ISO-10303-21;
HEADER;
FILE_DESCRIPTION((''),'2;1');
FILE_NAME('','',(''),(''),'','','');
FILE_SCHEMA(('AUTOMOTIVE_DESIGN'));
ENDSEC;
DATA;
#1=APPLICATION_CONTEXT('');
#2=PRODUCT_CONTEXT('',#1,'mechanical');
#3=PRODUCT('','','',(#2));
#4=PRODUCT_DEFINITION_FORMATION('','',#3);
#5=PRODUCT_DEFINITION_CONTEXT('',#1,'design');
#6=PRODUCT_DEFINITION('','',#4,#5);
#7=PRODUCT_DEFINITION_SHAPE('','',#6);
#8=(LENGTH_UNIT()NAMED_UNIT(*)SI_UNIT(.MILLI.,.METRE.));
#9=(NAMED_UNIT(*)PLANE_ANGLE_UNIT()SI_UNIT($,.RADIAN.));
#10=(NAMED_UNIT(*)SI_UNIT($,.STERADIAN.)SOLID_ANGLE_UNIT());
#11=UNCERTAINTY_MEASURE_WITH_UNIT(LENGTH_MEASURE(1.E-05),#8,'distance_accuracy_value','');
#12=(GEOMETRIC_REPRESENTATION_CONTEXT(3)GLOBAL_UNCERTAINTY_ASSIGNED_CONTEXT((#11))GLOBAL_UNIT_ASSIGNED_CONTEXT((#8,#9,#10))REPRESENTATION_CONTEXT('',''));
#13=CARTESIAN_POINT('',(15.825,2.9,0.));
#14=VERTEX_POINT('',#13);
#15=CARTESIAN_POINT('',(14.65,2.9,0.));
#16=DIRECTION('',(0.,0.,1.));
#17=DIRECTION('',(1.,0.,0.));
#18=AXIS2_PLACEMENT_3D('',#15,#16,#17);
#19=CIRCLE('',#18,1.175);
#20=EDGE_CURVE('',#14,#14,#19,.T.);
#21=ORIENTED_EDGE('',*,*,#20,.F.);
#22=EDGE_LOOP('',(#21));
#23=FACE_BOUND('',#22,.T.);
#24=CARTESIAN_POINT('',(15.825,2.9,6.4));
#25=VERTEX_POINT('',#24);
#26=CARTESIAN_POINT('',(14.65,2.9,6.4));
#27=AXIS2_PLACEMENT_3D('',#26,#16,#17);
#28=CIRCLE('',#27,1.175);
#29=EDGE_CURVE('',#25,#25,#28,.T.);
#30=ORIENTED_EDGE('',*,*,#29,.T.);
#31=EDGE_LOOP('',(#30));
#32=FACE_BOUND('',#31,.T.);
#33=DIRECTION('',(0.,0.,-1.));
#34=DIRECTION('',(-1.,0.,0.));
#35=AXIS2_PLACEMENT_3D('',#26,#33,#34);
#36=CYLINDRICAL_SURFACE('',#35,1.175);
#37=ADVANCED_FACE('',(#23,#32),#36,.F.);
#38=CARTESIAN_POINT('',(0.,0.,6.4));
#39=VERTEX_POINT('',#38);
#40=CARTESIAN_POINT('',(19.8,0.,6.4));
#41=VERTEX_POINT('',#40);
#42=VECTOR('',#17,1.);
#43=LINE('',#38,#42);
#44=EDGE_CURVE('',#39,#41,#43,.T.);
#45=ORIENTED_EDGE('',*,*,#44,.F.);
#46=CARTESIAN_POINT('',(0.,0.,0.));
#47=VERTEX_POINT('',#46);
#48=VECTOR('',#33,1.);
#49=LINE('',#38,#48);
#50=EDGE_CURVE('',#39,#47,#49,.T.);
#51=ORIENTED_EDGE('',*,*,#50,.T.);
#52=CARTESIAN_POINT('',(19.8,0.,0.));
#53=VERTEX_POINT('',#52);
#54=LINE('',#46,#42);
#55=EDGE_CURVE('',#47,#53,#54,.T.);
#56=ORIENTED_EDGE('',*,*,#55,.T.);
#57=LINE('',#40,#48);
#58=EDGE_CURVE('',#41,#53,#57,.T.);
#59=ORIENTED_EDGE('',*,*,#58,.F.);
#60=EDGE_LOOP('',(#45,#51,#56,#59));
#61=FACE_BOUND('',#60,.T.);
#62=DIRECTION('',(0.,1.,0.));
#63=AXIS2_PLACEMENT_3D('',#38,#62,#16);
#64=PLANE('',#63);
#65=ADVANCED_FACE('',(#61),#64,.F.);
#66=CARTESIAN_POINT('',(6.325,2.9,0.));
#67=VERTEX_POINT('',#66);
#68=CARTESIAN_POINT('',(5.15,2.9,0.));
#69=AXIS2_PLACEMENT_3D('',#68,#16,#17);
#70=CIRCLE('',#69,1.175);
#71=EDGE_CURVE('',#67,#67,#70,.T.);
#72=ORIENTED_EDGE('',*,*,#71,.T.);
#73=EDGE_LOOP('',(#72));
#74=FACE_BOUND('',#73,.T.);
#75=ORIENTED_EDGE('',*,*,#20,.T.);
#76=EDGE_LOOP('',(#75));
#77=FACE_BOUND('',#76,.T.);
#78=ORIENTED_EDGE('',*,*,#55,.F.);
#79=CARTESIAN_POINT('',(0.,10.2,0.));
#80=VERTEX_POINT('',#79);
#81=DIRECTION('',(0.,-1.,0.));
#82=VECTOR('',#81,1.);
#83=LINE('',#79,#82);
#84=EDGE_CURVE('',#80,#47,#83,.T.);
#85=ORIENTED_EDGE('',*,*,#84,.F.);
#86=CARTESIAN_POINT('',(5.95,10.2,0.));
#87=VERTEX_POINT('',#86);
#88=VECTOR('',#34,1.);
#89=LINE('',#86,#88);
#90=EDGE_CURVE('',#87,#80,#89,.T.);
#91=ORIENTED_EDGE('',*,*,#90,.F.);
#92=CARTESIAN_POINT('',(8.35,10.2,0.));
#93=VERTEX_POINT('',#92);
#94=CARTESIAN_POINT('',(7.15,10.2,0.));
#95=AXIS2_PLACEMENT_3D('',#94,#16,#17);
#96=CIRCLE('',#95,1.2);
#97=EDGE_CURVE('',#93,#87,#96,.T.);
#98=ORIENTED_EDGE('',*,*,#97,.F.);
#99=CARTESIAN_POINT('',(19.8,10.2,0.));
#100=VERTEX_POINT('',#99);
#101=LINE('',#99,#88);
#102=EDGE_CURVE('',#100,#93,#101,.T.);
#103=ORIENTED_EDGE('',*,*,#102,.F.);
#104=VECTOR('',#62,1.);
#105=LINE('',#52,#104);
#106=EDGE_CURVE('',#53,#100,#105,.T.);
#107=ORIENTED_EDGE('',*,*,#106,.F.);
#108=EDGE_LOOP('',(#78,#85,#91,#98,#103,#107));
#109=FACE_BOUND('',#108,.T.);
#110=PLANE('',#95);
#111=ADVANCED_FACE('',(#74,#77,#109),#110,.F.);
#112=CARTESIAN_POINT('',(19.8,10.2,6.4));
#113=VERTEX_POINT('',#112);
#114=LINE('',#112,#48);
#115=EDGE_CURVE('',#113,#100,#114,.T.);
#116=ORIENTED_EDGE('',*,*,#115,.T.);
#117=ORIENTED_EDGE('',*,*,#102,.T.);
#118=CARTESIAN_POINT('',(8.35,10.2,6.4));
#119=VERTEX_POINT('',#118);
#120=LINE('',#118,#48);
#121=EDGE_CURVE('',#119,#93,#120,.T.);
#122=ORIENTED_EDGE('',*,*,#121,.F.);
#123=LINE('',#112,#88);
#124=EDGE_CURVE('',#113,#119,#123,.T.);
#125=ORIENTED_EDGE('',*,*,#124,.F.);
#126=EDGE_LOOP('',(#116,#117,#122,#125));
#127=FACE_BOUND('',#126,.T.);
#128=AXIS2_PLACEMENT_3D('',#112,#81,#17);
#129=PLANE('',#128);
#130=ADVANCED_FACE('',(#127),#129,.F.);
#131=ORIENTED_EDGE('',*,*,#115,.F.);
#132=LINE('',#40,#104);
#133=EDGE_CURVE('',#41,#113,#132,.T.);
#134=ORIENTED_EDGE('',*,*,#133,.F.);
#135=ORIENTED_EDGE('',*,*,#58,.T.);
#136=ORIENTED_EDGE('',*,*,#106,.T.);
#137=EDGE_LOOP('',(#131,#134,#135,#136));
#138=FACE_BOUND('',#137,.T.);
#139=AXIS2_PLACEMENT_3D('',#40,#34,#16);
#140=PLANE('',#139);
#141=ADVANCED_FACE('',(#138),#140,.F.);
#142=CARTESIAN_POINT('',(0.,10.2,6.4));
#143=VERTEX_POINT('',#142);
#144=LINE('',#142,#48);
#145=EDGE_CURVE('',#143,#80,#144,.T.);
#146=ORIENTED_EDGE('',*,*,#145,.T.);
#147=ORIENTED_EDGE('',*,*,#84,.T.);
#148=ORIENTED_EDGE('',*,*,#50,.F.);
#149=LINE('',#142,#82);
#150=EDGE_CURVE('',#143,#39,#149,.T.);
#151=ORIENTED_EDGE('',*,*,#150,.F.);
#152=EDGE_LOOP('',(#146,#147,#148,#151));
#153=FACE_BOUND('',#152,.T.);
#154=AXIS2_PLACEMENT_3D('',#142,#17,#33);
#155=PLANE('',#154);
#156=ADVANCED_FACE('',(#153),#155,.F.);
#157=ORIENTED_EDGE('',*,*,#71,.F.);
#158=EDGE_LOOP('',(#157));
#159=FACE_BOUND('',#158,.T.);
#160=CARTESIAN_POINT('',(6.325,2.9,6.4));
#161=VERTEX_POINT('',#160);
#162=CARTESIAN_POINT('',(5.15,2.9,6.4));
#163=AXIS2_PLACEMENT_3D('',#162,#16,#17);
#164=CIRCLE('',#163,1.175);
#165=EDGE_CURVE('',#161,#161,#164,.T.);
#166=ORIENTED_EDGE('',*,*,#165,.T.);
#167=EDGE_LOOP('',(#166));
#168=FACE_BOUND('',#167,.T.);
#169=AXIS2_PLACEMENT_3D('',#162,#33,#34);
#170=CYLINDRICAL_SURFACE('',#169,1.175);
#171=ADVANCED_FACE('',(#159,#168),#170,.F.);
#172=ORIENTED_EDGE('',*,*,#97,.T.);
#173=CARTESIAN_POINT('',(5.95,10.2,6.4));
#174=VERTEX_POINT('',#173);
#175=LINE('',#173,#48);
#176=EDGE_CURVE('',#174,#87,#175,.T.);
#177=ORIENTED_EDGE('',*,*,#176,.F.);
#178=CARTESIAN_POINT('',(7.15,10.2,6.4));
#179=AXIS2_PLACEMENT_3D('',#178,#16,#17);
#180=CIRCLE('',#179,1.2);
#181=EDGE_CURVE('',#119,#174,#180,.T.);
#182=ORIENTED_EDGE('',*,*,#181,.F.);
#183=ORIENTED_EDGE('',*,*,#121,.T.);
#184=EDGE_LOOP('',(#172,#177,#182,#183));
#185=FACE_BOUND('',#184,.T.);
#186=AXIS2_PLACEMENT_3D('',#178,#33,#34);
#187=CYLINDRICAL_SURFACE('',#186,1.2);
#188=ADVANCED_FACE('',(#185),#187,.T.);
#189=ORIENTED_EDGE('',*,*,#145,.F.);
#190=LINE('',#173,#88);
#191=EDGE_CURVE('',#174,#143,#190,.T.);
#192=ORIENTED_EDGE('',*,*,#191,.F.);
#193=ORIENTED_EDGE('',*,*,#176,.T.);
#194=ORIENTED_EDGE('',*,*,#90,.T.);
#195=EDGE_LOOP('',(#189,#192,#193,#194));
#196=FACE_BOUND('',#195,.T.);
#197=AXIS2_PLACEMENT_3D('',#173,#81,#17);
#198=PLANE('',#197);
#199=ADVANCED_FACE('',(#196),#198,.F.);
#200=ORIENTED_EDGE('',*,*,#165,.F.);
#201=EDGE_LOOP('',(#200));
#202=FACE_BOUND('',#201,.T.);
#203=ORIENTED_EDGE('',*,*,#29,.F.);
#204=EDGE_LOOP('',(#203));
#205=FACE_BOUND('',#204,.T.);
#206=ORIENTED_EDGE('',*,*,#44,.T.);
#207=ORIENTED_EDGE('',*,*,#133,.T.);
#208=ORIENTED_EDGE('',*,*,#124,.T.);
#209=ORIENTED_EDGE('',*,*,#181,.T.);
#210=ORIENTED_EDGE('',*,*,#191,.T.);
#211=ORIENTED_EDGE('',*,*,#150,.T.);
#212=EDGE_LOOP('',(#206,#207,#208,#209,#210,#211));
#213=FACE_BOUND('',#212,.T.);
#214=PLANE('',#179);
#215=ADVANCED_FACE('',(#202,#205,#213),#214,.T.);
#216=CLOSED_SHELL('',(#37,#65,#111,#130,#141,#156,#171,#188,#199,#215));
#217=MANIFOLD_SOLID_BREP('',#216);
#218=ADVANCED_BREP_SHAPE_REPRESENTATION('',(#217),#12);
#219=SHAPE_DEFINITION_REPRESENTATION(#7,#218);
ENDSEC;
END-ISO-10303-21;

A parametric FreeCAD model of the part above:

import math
import FreeCAD as App
import Part
import Sketcher

doc = App.newDocument("Part")
params = doc.addObject("Spreadsheet::Sheet", "Params")
for row, (alias, value) in enumerate([
    ("sketch1_radius", "1.2 mm"),
    ("sketch1_diameter", "2.35 mm"),
    ("sketch1_width", "19.8 mm"),
    ("sketch1_height", "10.2 mm"),
    ("sketch1_width2", "11.45 mm"),
    ("pad1_length", "6.4 mm"),
], start=1):
    params.set(f"A{row}", alias)
    params.set(f"B{row}", "=" + value)
    params.setAlias(f"B{row}", alias)

body = doc.addObject("PartDesign::Body", "Body")

# Sketch on XY plane
sketch1 = body.newObject("Sketcher::SketchObject", "Sketch")
sketch1.AttachmentSupport = (doc.getObject("XY_Plane"), [""])
sketch1.MapMode = "FlatFace"
sketch1.addGeometry([
    Part.LineSegment(App.Vector(0, 0, 0), App.Vector(19.8, 0, 0)),  # 0
    Part.LineSegment(App.Vector(19.8, 0, 0), App.Vector(19.8, 10.2, 0)),  # 1
    Part.LineSegment(App.Vector(19.8, 10.2, 0), App.Vector(8.3, 10.2, 0)),  # 2
    Part.ArcOfCircle(Part.Circle(App.Vector(7.2, 10.2, 0), App.Vector(0, 0, 1), 1.2), math.radians(0), math.radians(180)),  # 3
    Part.LineSegment(App.Vector(6, 10.2, 0), App.Vector(0, 10.2, 0)),  # 4
    Part.LineSegment(App.Vector(0, 10.2, 0), App.Vector(0, 0, 0)),  # 5
    Part.Circle(App.Vector(5.2, 2.9, 0), App.Vector(0, 0, 1), 1.2),  # 6
    Part.Circle(App.Vector(14.7, 2.9, 0), App.Vector(0, 0, 1), 1.2),  # 7
], False)
sketch1.addConstraint([
    Sketcher.Constraint("Coincident", 0, 2, 1, 1),
    Sketcher.Constraint("Coincident", 1, 2, 2, 1),
    Sketcher.Constraint("Coincident", 2, 2, 3, 1),
    Sketcher.Constraint("Coincident", 3, 2, 4, 1),
    Sketcher.Constraint("Coincident", 4, 2, 5, 1),
    Sketcher.Constraint("Coincident", 5, 2, 0, 1),
    Sketcher.Constraint("Horizontal", 0),
    Sketcher.Constraint("Vertical", 1),
    Sketcher.Constraint("Horizontal", 2),
    Sketcher.Constraint("Horizontal", 4),
    Sketcher.Constraint("Vertical", 5),
    Sketcher.Constraint("Coincident", 5, 2, -1, 1),
    Sketcher.Constraint("Equal", 6, 7),
    Sketcher.Constraint("Horizontal", 6, 3, 7, 3),
    Sketcher.Constraint("Horizontal", 3, 3, 1, 2),
    Sketcher.Constraint("Horizontal", 2, 2, 3, 2),
    Sketcher.Constraint("Radius", 3, 1.2),
    Sketcher.Constraint("Diameter", 6, 2.35),
    Sketcher.Constraint("DistanceX", 0, 1, 0, 2, 19.8),
    Sketcher.Constraint("DistanceY", 1, 1, 1, 2, 10.2),
    Sketcher.Constraint("DistanceX", 6, 3, 3, 3, 2.0),
    Sketcher.Constraint("DistanceX", 2, 2, 2, 1, 11.45),
    Sketcher.Constraint("DistanceY", -1, 1, 6, 3, 2.9),
    Sketcher.Constraint("DistanceX", 6, 3, 7, 3, 9.5),
])
sketch1.setExpression("Constraints[16]", "Params.sketch1_radius")
sketch1.setExpression("Constraints[17]", "Params.sketch1_diameter")
sketch1.setExpression("Constraints[18]", "Params.sketch1_width")
sketch1.setExpression("Constraints[19]", "Params.sketch1_height")
sketch1.setExpression("Constraints[21]", "Params.sketch1_width2")
pad1 = body.newObject("PartDesign::Pad", "Pad")
pad1.Profile = sketch1
pad1.setExpression("Length", "Params.pad1_length")

doc.recompute()
